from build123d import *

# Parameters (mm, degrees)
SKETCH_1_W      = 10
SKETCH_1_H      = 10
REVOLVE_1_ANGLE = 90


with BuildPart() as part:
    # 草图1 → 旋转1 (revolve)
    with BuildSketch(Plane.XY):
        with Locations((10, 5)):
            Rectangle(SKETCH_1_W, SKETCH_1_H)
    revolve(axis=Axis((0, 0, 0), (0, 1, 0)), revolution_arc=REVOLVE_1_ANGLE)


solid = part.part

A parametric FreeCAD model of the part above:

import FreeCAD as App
import Part
import Sketcher

V = App.Vector


def add_polygon(sketch, points):
    """Adds a closed chain of lines whose ends are joined by coincident constraints."""
    first, n = sketch.GeometryCount, len(points)
    for a, b in zip(points, points[1:] + points[:1]):
        sketch.addGeometry(Part.LineSegment(App.Vector(*a, 0), App.Vector(*b, 0)), False)
    for i in range(n):
        sketch.addConstraint(Sketcher.Constraint("Coincident", first + i, 2, first + (i + 1) % n, 1))

doc = App.newDocument("Part")
params = doc.addObject("Spreadsheet::Sheet", "Params")
for row, (alias, value) in enumerate([
    ("sketch1_width", "10 mm"),
    ("revolution_angle", "90 deg"),
], start=1):
    params.set(f"A{row}", alias)
    params.set(f"B{row}", "=" + value)
    params.setAlias(f"B{row}", alias)

body = doc.addObject("PartDesign::Body", "Body")

sketch1 = doc.addObject("Sketcher::SketchObject", "Sketch")
body.addObject(sketch1)
sketch1.AttachmentSupport = (doc.XY_Plane, [""])
sketch1.MapMode = "FlatFace"
add_polygon(sketch1, [(5, 10), (5, 0), (15, 0), (15, 10)])
sketch1.addConstraint([
    Sketcher.Constraint("Vertical", 0),
    Sketcher.Constraint("Horizontal", 1),
    Sketcher.Constraint("Vertical", 2),
    Sketcher.Constraint("Horizontal", 3),
    Sketcher.Constraint("PointOnObject", 0, 2, -1),
    Sketcher.Constraint("Equal", 3, 0),
    Sketcher.Constraint("DistanceX", 1, 1, 1, 2, 10.0),
    Sketcher.Constraint("DistanceX", -1, 1, 0, 2, 5.0),
])
sketch1.setExpression("Constraints[10]", "Params.sketch1_width")
revolution = doc.addObject("PartDesign::Revolution", "Revolution")
body.addObject(revolution)
revolution.Profile = sketch1
revolution.ReferenceAxis = (sketch1, ["V_Axis"])
revolution.setExpression("Angle", "Params.revolution_angle")

doc.recompute()
